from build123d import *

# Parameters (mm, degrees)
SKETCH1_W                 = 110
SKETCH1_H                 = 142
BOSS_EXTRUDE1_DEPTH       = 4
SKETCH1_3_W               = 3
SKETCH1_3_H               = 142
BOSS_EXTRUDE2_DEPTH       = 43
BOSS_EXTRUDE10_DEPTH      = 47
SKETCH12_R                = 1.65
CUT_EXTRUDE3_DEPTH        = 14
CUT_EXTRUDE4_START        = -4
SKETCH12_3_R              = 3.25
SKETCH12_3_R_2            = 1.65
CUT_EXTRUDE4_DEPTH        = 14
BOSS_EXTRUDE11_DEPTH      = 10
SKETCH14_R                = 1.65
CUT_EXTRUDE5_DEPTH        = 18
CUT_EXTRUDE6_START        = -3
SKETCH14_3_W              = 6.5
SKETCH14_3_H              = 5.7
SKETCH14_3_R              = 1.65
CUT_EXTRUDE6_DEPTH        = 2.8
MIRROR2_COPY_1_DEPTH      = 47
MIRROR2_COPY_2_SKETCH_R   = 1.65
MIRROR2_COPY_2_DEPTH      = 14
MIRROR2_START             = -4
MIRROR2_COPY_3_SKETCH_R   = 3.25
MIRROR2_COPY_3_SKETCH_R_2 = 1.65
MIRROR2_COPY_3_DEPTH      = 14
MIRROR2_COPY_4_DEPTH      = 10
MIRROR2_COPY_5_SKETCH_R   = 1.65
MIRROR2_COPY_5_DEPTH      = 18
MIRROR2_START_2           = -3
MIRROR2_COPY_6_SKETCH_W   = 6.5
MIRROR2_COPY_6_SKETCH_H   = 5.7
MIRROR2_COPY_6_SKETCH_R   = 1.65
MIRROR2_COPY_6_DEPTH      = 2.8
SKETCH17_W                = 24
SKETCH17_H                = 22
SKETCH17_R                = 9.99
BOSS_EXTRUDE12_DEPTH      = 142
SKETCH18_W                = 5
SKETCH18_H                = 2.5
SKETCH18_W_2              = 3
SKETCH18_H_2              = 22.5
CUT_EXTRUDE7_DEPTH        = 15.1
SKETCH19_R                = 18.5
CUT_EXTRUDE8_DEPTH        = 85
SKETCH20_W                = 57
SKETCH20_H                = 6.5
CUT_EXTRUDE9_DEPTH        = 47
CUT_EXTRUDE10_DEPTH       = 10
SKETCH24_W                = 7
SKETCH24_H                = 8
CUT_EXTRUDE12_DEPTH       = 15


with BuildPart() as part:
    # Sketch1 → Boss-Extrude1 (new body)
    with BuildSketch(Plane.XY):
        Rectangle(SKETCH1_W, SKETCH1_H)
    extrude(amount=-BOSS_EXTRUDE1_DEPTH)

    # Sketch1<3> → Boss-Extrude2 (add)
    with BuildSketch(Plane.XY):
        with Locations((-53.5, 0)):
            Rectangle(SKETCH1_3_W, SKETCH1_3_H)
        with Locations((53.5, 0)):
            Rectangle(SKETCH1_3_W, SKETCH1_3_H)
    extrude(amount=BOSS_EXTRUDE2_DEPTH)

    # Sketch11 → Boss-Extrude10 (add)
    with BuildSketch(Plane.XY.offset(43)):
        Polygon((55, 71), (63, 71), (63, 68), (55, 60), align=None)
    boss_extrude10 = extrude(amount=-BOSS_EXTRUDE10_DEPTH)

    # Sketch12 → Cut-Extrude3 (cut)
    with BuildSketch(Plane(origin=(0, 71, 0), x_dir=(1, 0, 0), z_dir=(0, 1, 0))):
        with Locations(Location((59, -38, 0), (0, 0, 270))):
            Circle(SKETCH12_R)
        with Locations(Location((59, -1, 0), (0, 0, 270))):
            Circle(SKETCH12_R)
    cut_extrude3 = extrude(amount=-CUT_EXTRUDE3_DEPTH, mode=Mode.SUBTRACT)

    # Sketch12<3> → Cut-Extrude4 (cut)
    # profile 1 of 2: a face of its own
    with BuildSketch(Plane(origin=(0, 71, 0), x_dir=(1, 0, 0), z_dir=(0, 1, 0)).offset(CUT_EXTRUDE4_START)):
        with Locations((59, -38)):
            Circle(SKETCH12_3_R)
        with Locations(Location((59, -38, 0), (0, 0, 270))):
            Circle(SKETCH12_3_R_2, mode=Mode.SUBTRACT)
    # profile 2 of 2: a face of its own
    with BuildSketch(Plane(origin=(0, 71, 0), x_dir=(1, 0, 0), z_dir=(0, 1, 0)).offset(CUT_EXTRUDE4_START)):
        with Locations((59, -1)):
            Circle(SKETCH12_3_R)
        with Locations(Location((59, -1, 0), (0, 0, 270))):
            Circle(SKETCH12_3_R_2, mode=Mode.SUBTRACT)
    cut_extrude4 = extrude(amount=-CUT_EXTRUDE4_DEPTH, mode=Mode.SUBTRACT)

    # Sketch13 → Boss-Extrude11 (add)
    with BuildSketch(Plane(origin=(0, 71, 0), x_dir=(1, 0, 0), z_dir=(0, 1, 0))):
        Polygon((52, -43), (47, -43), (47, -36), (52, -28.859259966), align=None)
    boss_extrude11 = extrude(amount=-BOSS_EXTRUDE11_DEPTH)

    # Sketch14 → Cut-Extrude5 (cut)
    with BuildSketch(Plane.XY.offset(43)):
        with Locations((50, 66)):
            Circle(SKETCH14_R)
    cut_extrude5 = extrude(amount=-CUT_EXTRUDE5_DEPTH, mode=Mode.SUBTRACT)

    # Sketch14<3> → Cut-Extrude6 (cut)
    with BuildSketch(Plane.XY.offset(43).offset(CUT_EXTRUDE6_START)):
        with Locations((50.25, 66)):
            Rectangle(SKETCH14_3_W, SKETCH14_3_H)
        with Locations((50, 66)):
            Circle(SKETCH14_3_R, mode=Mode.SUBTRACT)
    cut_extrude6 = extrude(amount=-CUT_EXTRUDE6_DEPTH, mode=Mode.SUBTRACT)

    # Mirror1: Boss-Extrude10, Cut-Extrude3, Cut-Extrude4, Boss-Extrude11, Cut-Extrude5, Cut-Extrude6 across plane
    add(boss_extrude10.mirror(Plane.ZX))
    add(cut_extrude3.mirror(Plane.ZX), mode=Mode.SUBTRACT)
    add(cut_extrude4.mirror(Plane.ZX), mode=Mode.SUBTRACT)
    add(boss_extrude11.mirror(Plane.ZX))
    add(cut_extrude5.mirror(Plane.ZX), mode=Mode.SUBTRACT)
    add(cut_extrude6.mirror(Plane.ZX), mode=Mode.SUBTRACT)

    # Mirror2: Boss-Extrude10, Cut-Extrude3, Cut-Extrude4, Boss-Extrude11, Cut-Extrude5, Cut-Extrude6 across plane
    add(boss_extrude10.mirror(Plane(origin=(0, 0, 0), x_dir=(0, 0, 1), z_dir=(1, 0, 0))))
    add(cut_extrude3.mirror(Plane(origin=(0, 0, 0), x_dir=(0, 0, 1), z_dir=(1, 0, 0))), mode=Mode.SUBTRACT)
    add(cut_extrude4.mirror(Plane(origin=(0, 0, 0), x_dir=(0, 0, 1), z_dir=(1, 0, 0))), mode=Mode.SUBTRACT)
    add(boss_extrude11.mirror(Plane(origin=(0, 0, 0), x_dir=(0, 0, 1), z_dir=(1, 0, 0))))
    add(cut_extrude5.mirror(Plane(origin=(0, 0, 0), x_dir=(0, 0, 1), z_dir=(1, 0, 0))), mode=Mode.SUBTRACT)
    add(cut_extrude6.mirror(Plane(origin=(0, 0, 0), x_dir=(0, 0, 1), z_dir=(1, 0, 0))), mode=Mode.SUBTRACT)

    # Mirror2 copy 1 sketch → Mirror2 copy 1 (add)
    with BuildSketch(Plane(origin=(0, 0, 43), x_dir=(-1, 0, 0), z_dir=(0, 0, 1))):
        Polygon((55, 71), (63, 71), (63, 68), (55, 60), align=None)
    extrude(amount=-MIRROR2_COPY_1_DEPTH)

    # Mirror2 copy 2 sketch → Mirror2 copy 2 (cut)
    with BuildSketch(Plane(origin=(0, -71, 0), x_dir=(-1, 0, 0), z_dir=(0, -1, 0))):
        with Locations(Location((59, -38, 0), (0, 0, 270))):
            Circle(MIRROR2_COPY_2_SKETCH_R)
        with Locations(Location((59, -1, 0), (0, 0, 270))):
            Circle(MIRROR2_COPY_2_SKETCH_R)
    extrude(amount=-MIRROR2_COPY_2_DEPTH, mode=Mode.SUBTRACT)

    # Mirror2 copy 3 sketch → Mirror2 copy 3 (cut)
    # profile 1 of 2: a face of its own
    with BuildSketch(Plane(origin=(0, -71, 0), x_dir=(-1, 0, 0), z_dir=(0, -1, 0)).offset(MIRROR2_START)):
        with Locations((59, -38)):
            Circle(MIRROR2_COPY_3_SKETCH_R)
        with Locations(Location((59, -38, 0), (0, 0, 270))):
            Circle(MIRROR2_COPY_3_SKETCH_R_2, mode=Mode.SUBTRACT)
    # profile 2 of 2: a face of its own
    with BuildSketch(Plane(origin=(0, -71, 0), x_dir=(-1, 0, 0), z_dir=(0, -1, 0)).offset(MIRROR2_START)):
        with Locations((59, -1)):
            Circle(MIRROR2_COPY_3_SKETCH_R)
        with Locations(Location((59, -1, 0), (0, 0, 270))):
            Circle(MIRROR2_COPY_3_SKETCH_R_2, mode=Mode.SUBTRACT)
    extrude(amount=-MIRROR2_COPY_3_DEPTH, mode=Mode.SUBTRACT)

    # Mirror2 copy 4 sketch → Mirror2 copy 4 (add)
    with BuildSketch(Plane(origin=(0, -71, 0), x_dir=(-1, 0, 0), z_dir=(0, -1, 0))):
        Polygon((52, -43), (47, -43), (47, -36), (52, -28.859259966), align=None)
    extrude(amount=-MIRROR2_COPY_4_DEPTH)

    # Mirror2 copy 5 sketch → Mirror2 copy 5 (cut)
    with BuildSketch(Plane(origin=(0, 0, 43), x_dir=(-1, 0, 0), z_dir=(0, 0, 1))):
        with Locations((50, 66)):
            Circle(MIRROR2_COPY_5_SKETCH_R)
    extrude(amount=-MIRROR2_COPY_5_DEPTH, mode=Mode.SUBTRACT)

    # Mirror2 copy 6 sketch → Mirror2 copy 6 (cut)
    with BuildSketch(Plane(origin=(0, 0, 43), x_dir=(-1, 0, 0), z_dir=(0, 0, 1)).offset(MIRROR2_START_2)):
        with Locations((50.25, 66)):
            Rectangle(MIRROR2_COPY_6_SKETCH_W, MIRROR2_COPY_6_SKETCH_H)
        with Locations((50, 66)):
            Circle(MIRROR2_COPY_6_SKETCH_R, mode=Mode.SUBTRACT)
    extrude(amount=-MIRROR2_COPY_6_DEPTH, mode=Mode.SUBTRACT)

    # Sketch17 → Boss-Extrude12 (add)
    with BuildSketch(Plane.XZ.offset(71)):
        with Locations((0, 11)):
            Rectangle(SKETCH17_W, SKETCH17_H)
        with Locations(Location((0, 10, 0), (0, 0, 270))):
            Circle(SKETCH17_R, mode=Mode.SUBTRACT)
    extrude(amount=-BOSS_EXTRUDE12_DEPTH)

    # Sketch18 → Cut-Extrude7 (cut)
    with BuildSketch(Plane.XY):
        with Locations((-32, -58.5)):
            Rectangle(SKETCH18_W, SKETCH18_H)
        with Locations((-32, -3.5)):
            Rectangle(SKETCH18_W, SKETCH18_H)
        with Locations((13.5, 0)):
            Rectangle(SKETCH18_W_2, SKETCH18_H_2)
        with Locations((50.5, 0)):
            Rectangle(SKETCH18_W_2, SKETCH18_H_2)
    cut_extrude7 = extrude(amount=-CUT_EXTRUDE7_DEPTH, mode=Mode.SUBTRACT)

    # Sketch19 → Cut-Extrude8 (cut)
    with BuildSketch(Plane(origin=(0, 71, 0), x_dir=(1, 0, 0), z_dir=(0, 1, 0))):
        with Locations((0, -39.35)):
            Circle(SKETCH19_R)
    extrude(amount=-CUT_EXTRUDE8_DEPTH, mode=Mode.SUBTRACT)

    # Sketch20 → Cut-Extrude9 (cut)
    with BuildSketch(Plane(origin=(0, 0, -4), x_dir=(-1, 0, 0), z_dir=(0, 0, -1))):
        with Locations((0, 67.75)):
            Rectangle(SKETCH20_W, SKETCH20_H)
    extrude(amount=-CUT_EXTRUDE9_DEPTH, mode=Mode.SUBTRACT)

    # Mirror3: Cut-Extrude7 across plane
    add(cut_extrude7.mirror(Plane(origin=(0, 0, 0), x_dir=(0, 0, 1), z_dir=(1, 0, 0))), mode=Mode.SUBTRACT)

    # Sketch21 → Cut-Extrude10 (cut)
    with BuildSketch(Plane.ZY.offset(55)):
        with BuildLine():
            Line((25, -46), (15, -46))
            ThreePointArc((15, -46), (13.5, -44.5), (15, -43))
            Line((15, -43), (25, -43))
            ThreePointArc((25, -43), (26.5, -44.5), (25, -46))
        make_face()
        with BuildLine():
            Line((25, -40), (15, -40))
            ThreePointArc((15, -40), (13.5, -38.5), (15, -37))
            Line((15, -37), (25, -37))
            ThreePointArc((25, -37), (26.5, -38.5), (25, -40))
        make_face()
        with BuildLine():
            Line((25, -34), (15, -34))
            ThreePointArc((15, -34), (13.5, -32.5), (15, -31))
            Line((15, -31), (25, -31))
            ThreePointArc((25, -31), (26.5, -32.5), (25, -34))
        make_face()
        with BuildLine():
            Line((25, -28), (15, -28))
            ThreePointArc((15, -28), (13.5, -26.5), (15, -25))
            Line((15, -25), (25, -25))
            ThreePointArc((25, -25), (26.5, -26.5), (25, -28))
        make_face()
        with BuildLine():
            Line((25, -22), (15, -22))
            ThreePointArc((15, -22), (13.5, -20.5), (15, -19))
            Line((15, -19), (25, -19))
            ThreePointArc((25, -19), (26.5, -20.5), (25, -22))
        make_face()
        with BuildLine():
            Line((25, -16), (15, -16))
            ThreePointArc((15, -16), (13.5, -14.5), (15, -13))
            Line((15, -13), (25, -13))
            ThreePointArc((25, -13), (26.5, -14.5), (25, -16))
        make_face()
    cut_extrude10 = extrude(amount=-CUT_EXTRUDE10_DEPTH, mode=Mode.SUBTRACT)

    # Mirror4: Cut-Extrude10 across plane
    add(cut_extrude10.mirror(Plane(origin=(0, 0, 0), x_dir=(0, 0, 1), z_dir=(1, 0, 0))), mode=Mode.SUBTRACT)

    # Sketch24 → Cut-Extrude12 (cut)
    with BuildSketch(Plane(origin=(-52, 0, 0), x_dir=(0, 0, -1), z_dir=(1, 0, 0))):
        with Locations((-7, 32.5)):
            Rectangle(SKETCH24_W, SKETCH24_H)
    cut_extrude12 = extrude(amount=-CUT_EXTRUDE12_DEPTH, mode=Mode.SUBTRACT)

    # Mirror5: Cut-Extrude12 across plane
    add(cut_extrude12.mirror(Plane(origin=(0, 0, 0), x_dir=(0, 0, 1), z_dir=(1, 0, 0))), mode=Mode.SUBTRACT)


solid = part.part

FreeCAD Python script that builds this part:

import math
import FreeCAD as App
import Part
import Sketcher
Q = App.Units.Quantity

doc = App.newDocument("Part")
body = doc.addObject("PartDesign::Body", "Body")

# Sketch on XY plane
sketch1 = body.newObject("Sketcher::SketchObject", "Sketch")
sketch1.AttachmentSupport = (doc.getObject("XY_Plane"), [""])
sketch1.MapMode = "FlatFace"
sketch1.addGeometry([
    Part.LineSegment(App.Vector(-55, 71, 0), App.Vector(-55, -71, 0)),
    Part.LineSegment(App.Vector(-55, -71, 0), App.Vector(55, -71, 0)),
    Part.LineSegment(App.Vector(55, -71, 0), App.Vector(55, 71, 0)),
    Part.LineSegment(App.Vector(55, 71, 0), App.Vector(-55, 71, 0)),
], False)
sketch1.addConstraint([
    Sketcher.Constraint("Coincident", 0, 2, 1, 1),
    Sketcher.Constraint("Coincident", 1, 2, 2, 1),
    Sketcher.Constraint("Coincident", 2, 2, 3, 1),
    Sketcher.Constraint("Coincident", 3, 2, 0, 1),
    Sketcher.Constraint("Vertical", 0),
    Sketcher.Constraint("Horizontal", 1),
    Sketcher.Constraint("Vertical", 2),
    Sketcher.Constraint("Horizontal", 3),
    Sketcher.Constraint("Symmetric", 0, 2, 2, 2, -1, 1),
    Sketcher.Constraint("DistanceX", 1, 1, 1, 2, Q("110 mm")),
    Sketcher.Constraint("DistanceY", 0, 2, 0, 1, Q("142 mm")),
])
pad1 = body.newObject("PartDesign::Pad", "Pad")
pad1.Profile = sketch1
pad1.Length = 4
pad1.Reversed = True

# Sketch on XY plane
sketch2 = body.newObject("Sketcher::SketchObject", "Sketch001")
sketch2.AttachmentSupport = (doc.getObject("XY_Plane"), [""])
sketch2.MapMode = "FlatFace"
sketch2.addGeometry([
    Part.LineSegment(App.Vector(-55, 71, 0), App.Vector(-55, -71, 0)),  # 0
    Part.LineSegment(App.Vector(-55, -71, 0), App.Vector(-52, -71, 0)),  # 1
    Part.LineSegment(App.Vector(-52, -71, 0), App.Vector(-52, 71, 0)),  # 2
    Part.LineSegment(App.Vector(-52, 71, 0), App.Vector(-55, 71, 0)),  # 3
    Part.LineSegment(App.Vector(52, 71, 0), App.Vector(52, -71, 0)),  # 4
    Part.LineSegment(App.Vector(52, -71, 0), App.Vector(55, -71, 0)),  # 5
    Part.LineSegment(App.Vector(55, -71, 0), App.Vector(55, 71, 0)),  # 6
    Part.LineSegment(App.Vector(55, 71, 0), App.Vector(52, 71, 0)),  # 7
], False)
sketch2.addConstraint([
    Sketcher.Constraint("Coincident", 0, 2, 1, 1),
    Sketcher.Constraint("Coincident", 1, 2, 2, 1),
    Sketcher.Constraint("Coincident", 2, 2, 3, 1),
    Sketcher.Constraint("Coincident", 3, 2, 0, 1),
    Sketcher.Constraint("Coincident", 4, 2, 5, 1),
    Sketcher.Constraint("Coincident", 5, 2, 6, 1),
    Sketcher.Constraint("Coincident", 6, 2, 7, 1),
    Sketcher.Constraint("Coincident", 7, 2, 4, 1),
    Sketcher.Constraint("Vertical", 0),
    Sketcher.Constraint("Horizontal", 1),
    Sketcher.Constraint("Vertical", 2),
    Sketcher.Constraint("Horizontal", 3),
    Sketcher.Constraint("Vertical", 4),
    Sketcher.Constraint("Horizontal", 5),
    Sketcher.Constraint("Vertical", 6),
    Sketcher.Constraint("Horizontal", 7),
    Sketcher.Constraint("Symmetric", 2, 2, 4, 2, -1, 1),
    Sketcher.Constraint("Symmetric", 0, 2, 6, 2, -1, 1),
    Sketcher.Constraint("Horizontal", 1, 2, 4, 2),
    Sketcher.Constraint("DistanceX", 1, 1, 1, 2, Q("3 mm")),
    Sketcher.Constraint("DistanceY", 0, 2, 0, 1, Q("142 mm")),
    Sketcher.Constraint("DistanceX", 0, 2, -1, 1, Q("55 mm")),
])
pad2 = body.newObject("PartDesign::Pad", "Pad001")
pad2.Profile = sketch2
pad2.Length = 43

# Sketch on XY plane
sketch3 = body.newObject("Sketcher::SketchObject", "Sketch002")
sketch3.AttachmentSupport = (doc.getObject("XY_Plane"), [""])
sketch3.MapMode = "FlatFace"
sketch3.AttachmentOffset = App.Placement(App.Vector(0, 0, 43), App.Rotation())
sketch3.addGeometry([
    Part.LineSegment(App.Vector(63, 71, 0), App.Vector(55, 71, 0)),
    Part.LineSegment(App.Vector(55, 71, 0), App.Vector(55, 60, 0)),
    Part.LineSegment(App.Vector(55, 60, 0), App.Vector(63, 68, 0)),
    Part.LineSegment(App.Vector(63, 68, 0), App.Vector(63, 71, 0)),
], False)
sketch3.addConstraint([
    Sketcher.Constraint("Coincident", 0, 2, 1, 1),
    Sketcher.Constraint("Coincident", 1, 2, 2, 1),
    Sketcher.Constraint("Coincident", 2, 2, 3, 1),
    Sketcher.Constraint("Coincident", 3, 2, 0, 1),
    Sketcher.Constraint("Horizontal", 0),
    Sketcher.Constraint("Vertical", 1),
    Sketcher.Constraint("Vertical", 3),
    Sketcher.Constraint("DistanceX", 0, 2, 0, 1, Q("8 mm")),
    Sketcher.Constraint("DistanceY", 1, 2, 1, 1, Q("11 mm")),
    Sketcher.Constraint("DistanceY", 3, 1, 3, 2, Q("3 mm")),
    Sketcher.Constraint("DistanceX", -1, 1, 0, 2, Q("55 mm")),
    Sketcher.Constraint("DistanceY", -1, 1, 0, 2, Q("71 mm")),
])
pad3 = body.newObject("PartDesign::Pad", "Pad002")
pad3.Profile = sketch3
pad3.Length = 47
pad3.Reversed = True

# Sketch on XZ plane
sketch4 = body.newObject("Sketcher::SketchObject", "Sketch003")
sketch4.AttachmentSupport = (doc.getObject("XZ_Plane"), [""])
sketch4.MapMode = "FlatFace"
sketch4.AttachmentOffset = App.Placement(App.Vector(0, 0, -71), App.Rotation())
sketch4.addGeometry([
    Part.Circle(App.Vector(59, 38, 0), App.Vector(0, 0, 1), 1.6),
    Part.Circle(App.Vector(59, 1, 0), App.Vector(0, 0, 1), 1.6),
], False)
sketch4.addConstraint([
    Sketcher.Constraint("Equal", 0, 1),
    Sketcher.Constraint("Vertical", 0, 3, 1, 3),
    Sketcher.Constraint("Diameter", 0, Q("3.3 mm")),
    Sketcher.Constraint("DistanceX", -1, 1, 0, 3, Q("59 mm")),
    Sketcher.Constraint("DistanceY", -1, 1, 0, 3, Q("38 mm")),
    Sketcher.Constraint("DistanceY", -1, 1, 1, 3, Q("1 mm")),
])
pocket1 = body.newObject("PartDesign::Pocket", "Pocket")
pocket1.Profile = sketch4
pocket1.Length = 14
pocket1.Reversed = True

# Sketch on XZ plane
sketch5 = body.newObject("Sketcher::SketchObject", "Sketch004")
sketch5.AttachmentSupport = (doc.getObject("XZ_Plane"), [""])
sketch5.MapMode = "FlatFace"
sketch5.AttachmentOffset = App.Placement(App.Vector(0, 0, -67), App.Rotation())
sketch5.addGeometry([
    Part.Circle(App.Vector(59, 38, 0), App.Vector(0, 0, 1), 3.2),
    Part.Circle(App.Vector(59, 38, 0), App.Vector(0, 0, 1), 1.6),
    Part.Circle(App.Vector(59, 1, 0), App.Vector(0, 0, 1), 3.2),
    Part.Circle(App.Vector(59, 1, 0), App.Vector(0, 0, 1), 1.6),
], False)
sketch5.addConstraint([
    Sketcher.Constraint("Coincident", 1, 3, 0, 3),
    Sketcher.Constraint("Coincident", 3, 3, 2, 3),
    Sketcher.Constraint("Equal", 0, 2),
    Sketcher.Constraint("Equal", 1, 3),
    Sketcher.Constraint("Vertical", 1, 3, 2, 3),
    Sketcher.Constraint("Diameter", 0, Q("6.5 mm")),
    Sketcher.Constraint("Diameter", 1, Q("3.3 mm")),
    Sketcher.Constraint("DistanceX", -1, 1, 0, 3, Q("59 mm")),
    Sketcher.Constraint("DistanceY", -1, 1, 0, 3, Q("38 mm")),
    Sketcher.Constraint("DistanceY", -1, 1, 2, 3, Q("1 mm")),
])
pocket2 = body.newObject("PartDesign::Pocket", "Pocket001")
pocket2.Profile = sketch5
pocket2.Length = 14
pocket2.Reversed = True

# Sketch on XZ plane
sketch6 = body.newObject("Sketcher::SketchObject", "Sketch005")
sketch6.AttachmentSupport = (doc.getObject("XZ_Plane"), [""])
sketch6.MapMode = "FlatFace"
sketch6.AttachmentOffset = App.Placement(App.Vector(0, 0, -71), App.Rotation())
sketch6.addGeometry([
    Part.LineSegment(App.Vector(47, 43, 0), App.Vector(52, 43, 0)),
    Part.LineSegment(App.Vector(52, 43, 0), App.Vector(52, 29, 0)),
    Part.LineSegment(App.Vector(52, 29, 0), App.Vector(47, 36, 0)),
    Part.LineSegment(App.Vector(47, 36, 0), App.Vector(47, 43, 0)),
], False)
sketch6.addConstraint([
    Sketcher.Constraint("Coincident", 0, 2, 1, 1),
    Sketcher.Constraint("Coincident", 1, 2, 2, 1),
    Sketcher.Constraint("Coincident", 2, 2, 3, 1),
    Sketcher.Constraint("Coincident", 3, 2, 0, 1),
    Sketcher.Constraint("Horizontal", 0),
    Sketcher.Constraint("Vertical", 1),
    Sketcher.Constraint("Vertical", 3),
    Sketcher.Constraint("DistanceX", 0, 1, 0, 2, Q("5 mm")),
    Sketcher.Constraint("DistanceY", 3, 1, 3, 2, Q("7 mm")),
    Sketcher.Constraint("Angle", 2, Q("125 deg")),
    Sketcher.Constraint("DistanceX", -1, 1, 0, 2, Q("52 mm")),
    Sketcher.Constraint("DistanceY", -1, 1, 0, 2, Q("43 mm")),
])
pad4 = body.newObject("PartDesign::Pad", "Pad003")
pad4.Profile = sketch6
pad4.Length = 10

# Sketch on XY plane
sketch7 = body.newObject("Sketcher::SketchObject", "Sketch006")
sketch7.AttachmentSupport = (doc.getObject("XY_Plane"), [""])
sketch7.MapMode = "FlatFace"
sketch7.AttachmentOffset = App.Placement(App.Vector(0, 0, 43), App.Rotation())
sketch7.addGeometry(Part.Circle(App.Vector(50, 66, 0), App.Vector(0, 0, 1), 1.6), False)
sketch7.addConstraint([
    Sketcher.Constraint("Diameter", 0, Q("3.3 mm")),
    Sketcher.Constraint("DistanceX", -1, 1, 0, 3, Q("50 mm")),
    Sketcher.Constraint("DistanceY", -1, 1, 0, 3, Q("66 mm")),
])
pocket3 = body.newObject("PartDesign::Pocket", "Pocket002")
pocket3.Profile = sketch7
pocket3.Length = 18

# Sketch on XY plane
sketch8 = body.newObject("Sketcher::SketchObject", "Sketch007")
sketch8.AttachmentSupport = (doc.getObject("XY_Plane"), [""])
sketch8.MapMode = "FlatFace"
sketch8.AttachmentOffset = App.Placement(App.Vector(0, 0, 40), App.Rotation())
sketch8.addGeometry([
    Part.LineSegment(App.Vector(47, 68.8, 0), App.Vector(47, 63.1, 0)),  # 0
    Part.LineSegment(App.Vector(47, 63.1, 0), App.Vector(53.5, 63.1, 0)),  # 1
    Part.LineSegment(App.Vector(53.5, 63.1, 0), App.Vector(53.5, 68.8, 0)),  # 2
    Part.LineSegment(App.Vector(53.5, 68.8, 0), App.Vector(47, 68.8, 0)),  # 3
    Part.Circle(App.Vector(50, 66, 0), App.Vector(0, 0, 1), 1.6),  # 4
], False)
sketch8.addConstraint([
    Sketcher.Constraint("Coincident", 0, 2, 1, 1),
    Sketcher.Constraint("Coincident", 1, 2, 2, 1),
    Sketcher.Constraint("Coincident", 2, 2, 3, 1),
    Sketcher.Constraint("Coincident", 3, 2, 0, 1),
    Sketcher.Constraint("Vertical", 0),
    Sketcher.Constraint("Horizontal", 1),
    Sketcher.Constraint("Vertical", 2),
    Sketcher.Constraint("Horizontal", 3),
    Sketcher.Constraint("Diameter", 4, Q("3.3 mm")),
    Sketcher.Constraint("DistanceX", 1, 1, 1, 2, Q("6.5 mm")),
    Sketcher.Constraint("DistanceY", 0, 2, 0, 1, Q("5.7 mm")),
    Sketcher.Constraint("DistanceX", -1, 1, 4, 3, Q("50 mm")),
    Sketcher.Constraint("DistanceY", -1, 1, 4, 3, Q("66 mm")),
    Sketcher.Constraint("DistanceX", -1, 1, 0, 2, Q("47 mm")),
    Sketcher.Constraint("DistanceY", -1, 1, 0, 2, Q("63.15 mm")),
])
pocket4 = body.newObject("PartDesign::Pocket", "Pocket003")
pocket4.Profile = sketch8
pocket4.Length = 2.8
doc.recompute()

mirrored = body.newObject("PartDesign::Mirrored", "Mirrored")
mirrored.Originals = [pad3, pocket1, pocket2, pad4, pocket3, pocket4]
mirrored.MirrorPlane = (doc.getObject("XZ_Plane"), [""])
body.Tip = mirrored
doc.recompute()

mirrored2 = body.newObject("PartDesign::Mirrored", "Mirrored001")
mirrored2.Originals = [pad3, pocket1, pocket2, pad4, pocket3, pocket4]
mirrored2.MirrorPlane = (doc.getObject("YZ_Plane"), [""])
body.Tip = mirrored2

# Sketch on XY plane
sketch9 = body.newObject("Sketcher::SketchObject", "Sketch008")
sketch9.AttachmentSupport = (doc.getObject("XY_Plane"), [""])
sketch9.MapMode = "FlatFace"
sketch9.AttachmentOffset = App.Placement(App.Vector(0, 0, 43), App.Rotation())
sketch9.addGeometry([
    Part.LineSegment(App.Vector(-63, -71, 0), App.Vector(-55, -71, 0)),
    Part.LineSegment(App.Vector(-55, -71, 0), App.Vector(-55, -60, 0)),
    Part.LineSegment(App.Vector(-55, -60, 0), App.Vector(-63, -68, 0)),
    Part.LineSegment(App.Vector(-63, -68, 0), App.Vector(-63, -71, 0)),
], False)
sketch9.addConstraint([
    Sketcher.Constraint("Coincident", 0, 2, 1, 1),
    Sketcher.Constraint("Coincident", 1, 2, 2, 1),
    Sketcher.Constraint("Coincident", 2, 2, 3, 1),
    Sketcher.Constraint("Coincident", 3, 2, 0, 1),
    Sketcher.Constraint("Horizontal", 0),
    Sketcher.Constraint("Vertical", 1),
    Sketcher.Constraint("Vertical", 3),
    Sketcher.Constraint("DistanceX", 0, 1, 0, 2, Q("8 mm")),
    Sketcher.Constraint("DistanceY", 1, 1, 1, 2, Q("11 mm")),
    Sketcher.Constraint("DistanceY", 3, 2, 3, 1, Q("3 mm")),
    Sketcher.Constraint("DistanceX", 0, 2, -1, 1, Q("55 mm")),
    Sketcher.Constraint("DistanceY", 0, 2, -1, 1, Q("71 mm")),
])
pad5 = body.newObject("PartDesign::Pad", "Pad004")
pad5.Profile = sketch9
pad5.Length = 47
pad5.Reversed = True

# Sketch on XZ plane
sketch10 = body.newObject("Sketcher::SketchObject", "Sketch009")
sketch10.AttachmentSupport = (doc.getObject("XZ_Plane"), [""])
sketch10.MapMode = "FlatFace"
sketch10.AttachmentOffset = App.Placement(App.Vector(0, 0, 71), App.Rotation())
sketch10.addGeometry([
    Part.Circle(App.Vector(-59, 38, 0), App.Vector(0, 0, 1), 1.6),
    Part.Circle(App.Vector(-59, 1, 0), App.Vector(0, 0, 1), 1.6),
], False)
sketch10.addConstraint([
    Sketcher.Constraint("Equal", 0, 1),
    Sketcher.Constraint("Vertical", 0, 3, 1, 3),
    Sketcher.Constraint("Diameter", 0, Q("3.3 mm")),
    Sketcher.Constraint("DistanceX", 0, 3, -1, 1, Q("59 mm")),
    Sketcher.Constraint("DistanceY", -1, 1, 0, 3, Q("38 mm")),
    Sketcher.Constraint("DistanceY", -1, 1, 1, 3, Q("1 mm")),
])
pocket5 = body.newObject("PartDesign::Pocket", "Pocket004")
pocket5.Profile = sketch10
pocket5.Length = 14

# Sketch on XZ plane
sketch11 = body.newObject("Sketcher::SketchObject", "Sketch010")
sketch11.AttachmentSupport = (doc.getObject("XZ_Plane"), [""])
sketch11.MapMode = "FlatFace"
sketch11.AttachmentOffset = App.Placement(App.Vector(0, 0, 67), App.Rotation())
sketch11.addGeometry([
    Part.Circle(App.Vector(-59, 38, 0), App.Vector(0, 0, 1), 3.2),
    Part.Circle(App.Vector(-59, 38, 0), App.Vector(0, 0, 1), 1.6),
    Part.Circle(App.Vector(-59, 1, 0), App.Vector(0, 0, 1), 3.2),
    Part.Circle(App.Vector(-59, 1, 0), App.Vector(0, 0, 1), 1.6),
], False)
sketch11.addConstraint([
    Sketcher.Constraint("Coincident", 1, 3, 0, 3),
    Sketcher.Constraint("Coincident", 3, 3, 2, 3),
    Sketcher.Constraint("Equal", 0, 2),
    Sketcher.Constraint("Equal", 1, 3),
    Sketcher.Constraint("Vertical", 1, 3, 2, 3),
    Sketcher.Constraint("Diameter", 0, Q("6.5 mm")),
    Sketcher.Constraint("Diameter", 1, Q("3.3 mm")),
    Sketcher.Constraint("DistanceX", 0, 3, -1, 1, Q("59 mm")),
    Sketcher.Constraint("DistanceY", -1, 1, 0, 3, Q("38 mm")),
    Sketcher.Constraint("DistanceY", -1, 1, 2, 3, Q("1 mm")),
])
pocket6 = body.newObject("PartDesign::Pocket", "Pocket005")
pocket6.Profile = sketch11
pocket6.Length = 14

# Sketch on XZ plane
sketch12 = body.newObject("Sketcher::SketchObject", "Sketch011")
sketch12.AttachmentSupport = (doc.getObject("XZ_Plane"), [""])
sketch12.MapMode = "FlatFace"
sketch12.AttachmentOffset = App.Placement(App.Vector(0, 0, 71), App.Rotation())
sketch12.addGeometry([
    Part.LineSegment(App.Vector(-47, 43, 0), App.Vector(-52, 43, 0)),
    Part.LineSegment(App.Vector(-52, 43, 0), App.Vector(-52, 29, 0)),
    Part.LineSegment(App.Vector(-52, 29, 0), App.Vector(-47, 36, 0)),
    Part.LineSegment(App.Vector(-47, 36, 0), App.Vector(-47, 43, 0)),
], False)
sketch12.addConstraint([
    Sketcher.Constraint("Coincident", 0, 2, 1, 1),
    Sketcher.Constraint("Coincident", 1, 2, 2, 1),
    Sketcher.Constraint("Coincident", 2, 2, 3, 1),
    Sketcher.Constraint("Coincident", 3, 2, 0, 1),
    Sketcher.Constraint("Horizontal", 0),
    Sketcher.Constraint("Vertical", 1),
    Sketcher.Constraint("Vertical", 3),
    Sketcher.Constraint("DistanceX", 0, 2, 0, 1, Q("5 mm")),
    Sketcher.Constraint("DistanceY", 3, 1, 3, 2, Q("7 mm")),
    Sketcher.Constraint("Angle", 2, Q("55 deg")),
    Sketcher.Constraint("DistanceX", 0, 2, -1, 1, Q("52 mm")),
    Sketcher.Constraint("DistanceY", -1, 1, 0, 2, Q("43 mm")),
])
pad6 = body.newObject("PartDesign::Pad", "Pad005")
pad6.Profile = sketch12
pad6.Length = 10
pad6.Reversed = True

# Sketch on XY plane
sketch13 = body.newObject("Sketcher::SketchObject", "Sketch012")
sketch13.AttachmentSupport = (doc.getObject("XY_Plane"), [""])
sketch13.MapMode = "FlatFace"
sketch13.AttachmentOffset = App.Placement(App.Vector(0, 0, 43), App.Rotation())
sketch13.addGeometry(Part.Circle(App.Vector(-50, -66, 0), App.Vector(0, 0, 1), 1.6), False)
sketch13.addConstraint([
    Sketcher.Constraint("Diameter", 0, Q("3.3 mm")),
    Sketcher.Constraint("DistanceX", 0, 3, -1, 1, Q("50 mm")),
    Sketcher.Constraint("DistanceY", 0, 3, -1, 1, Q("66 mm")),
])
pocket7 = body.newObject("PartDesign::Pocket", "Pocket006")
pocket7.Profile = sketch13
pocket7.Length = 18

# Sketch on XY plane
sketch14 = body.newObject("Sketcher::SketchObject", "Sketch013")
sketch14.AttachmentSupport = (doc.getObject("XY_Plane"), [""])
sketch14.MapMode = "FlatFace"
sketch14.AttachmentOffset = App.Placement(App.Vector(0, 0, 40), App.Rotation())
sketch14.addGeometry([
    Part.LineSegment(App.Vector(-47, -68.8, 0), App.Vector(-47, -63.1, 0)),  # 0
    Part.LineSegment(App.Vector(-47, -63.1, 0), App.Vector(-53.5, -63.1, 0)),  # 1
    Part.LineSegment(App.Vector(-53.5, -63.1, 0), App.Vector(-53.5, -68.8, 0)),  # 2
    Part.LineSegment(App.Vector(-53.5, -68.8, 0), App.Vector(-47, -68.8, 0)),  # 3
    Part.Circle(App.Vector(-50, -66, 0), App.Vector(0, 0, 1), 1.6),  # 4
], False)
sketch14.addConstraint([
    Sketcher.Constraint("Coincident", 0, 2, 1, 1),
    Sketcher.Constraint("Coincident", 1, 2, 2, 1),
    Sketcher.Constraint("Coincident", 2, 2, 3, 1),
    Sketcher.Constraint("Coincident", 3, 2, 0, 1),
    Sketcher.Constraint("Vertical", 0),
    Sketcher.Constraint("Horizontal", 1),
    Sketcher.Constraint("Vertical", 2),
    Sketcher.Constraint("Horizontal", 3),
    Sketcher.Constraint("Diameter", 4, Q("3.3 mm")),
    Sketcher.Constraint("DistanceX", 1, 2, 1, 1, Q("6.5 mm")),
    Sketcher.Constraint("DistanceY", 0, 1, 0, 2, Q("5.7 mm")),
    Sketcher.Constraint("DistanceX", 4, 3, -1, 1, Q("50 mm")),
    Sketcher.Constraint("DistanceY", 4, 3, -1, 1, Q("66 mm")),
    Sketcher.Constraint("DistanceX", 0, 2, -1, 1, Q("47 mm")),
    Sketcher.Constraint("DistanceY", 0, 2, -1, 1, Q("63.15 mm")),
])
pocket8 = body.newObject("PartDesign::Pocket", "Pocket007")
pocket8.Profile = sketch14
pocket8.Length = 2.8

# Sketch on XZ plane
sketch15 = body.newObject("Sketcher::SketchObject", "Sketch014")
sketch15.AttachmentSupport = (doc.getObject("XZ_Plane"), [""])
sketch15.MapMode = "FlatFace"
sketch15.AttachmentOffset = App.Placement(App.Vector(0, 0, 71), App.Rotation())
sketch15.addGeometry([
    Part.LineSegment(App.Vector(-12, 22, 0), App.Vector(-12, 0, 0)),  # 0
    Part.LineSegment(App.Vector(-12, 0, 0), App.Vector(12, 0, 0)),  # 1
    Part.LineSegment(App.Vector(12, 0, 0), App.Vector(12, 22, 0)),  # 2
    Part.LineSegment(App.Vector(12, 22, 0), App.Vector(-12, 22, 0)),  # 3
    Part.Circle(App.Vector(0, 10, 0), App.Vector(0, 0, 1), 10),  # 4
], False)
sketch15.addConstraint([
    Sketcher.Constraint("Coincident", 0, 2, 1, 1),
    Sketcher.Constraint("Coincident", 1, 2, 2, 1),
    Sketcher.Constraint("Coincident", 2, 2, 3, 1),
    Sketcher.Constraint("Coincident", 3, 2, 0, 1),
    Sketcher.Constraint("Vertical", 0),
    Sketcher.Constraint("Horizontal", 1),
    Sketcher.Constraint("Vertical", 2),
    Sketcher.Constraint("Horizontal", 3),
    Sketcher.Constraint("Symmetric", 0, 2, 1, 2, -1, 1),
    Sketcher.Constraint("PointOnObject", 4, 3, -2),
    Sketcher.Constraint("Diameter", 4, Q("19.98 mm")),
    Sketcher.Constraint("DistanceX", 1, 1, 1, 2, Q("24 mm")),
    Sketcher.Constraint("DistanceY", 0, 2, 0, 1, Q("22 mm")),
    Sketcher.Constraint("DistanceY", -1, 1, 4, 3, Q("10 mm")),
])
pad7 = body.newObject("PartDesign::Pad", "Pad006")
pad7.Profile = sketch15
pad7.Length = 142
pad7.Reversed = True

# Sketch on XY plane
sketch16 = body.newObject("Sketcher::SketchObject", "Sketch015")
sketch16.AttachmentSupport = (doc.getObject("XY_Plane"), [""])
sketch16.MapMode = "FlatFace"
sketch16.addGeometry([
    Part.LineSegment(App.Vector(-34.5, -57.2, 0), App.Vector(-34.5, -59.8, 0)),  # 0
    Part.LineSegment(App.Vector(-34.5, -59.8, 0), App.Vector(-29.5, -59.8, 0)),  # 1
    Part.LineSegment(App.Vector(-29.5, -59.8, 0), App.Vector(-29.5, -57.2, 0)),  # 2
    Part.LineSegment(App.Vector(-29.5, -57.2, 0), App.Vector(-34.5, -57.2, 0)),  # 3
    Part.LineSegment(App.Vector(-34.5, -2.2, 0), App.Vector(-34.5, -4.8, 0)),  # 4
    Part.LineSegment(App.Vector(-34.5, -4.8, 0), App.Vector(-29.5, -4.8, 0)),  # 5
    Part.LineSegment(App.Vector(-29.5, -4.8, 0), App.Vector(-29.5, -2.2, 0)),  # 6
    Part.LineSegment(App.Vector(-29.5, -2.2, 0), App.Vector(-34.5, -2.2, 0)),  # 7
    Part.LineSegment(App.Vector(12, 11.2, 0), App.Vector(12, -11.2, 0)),  # 8
    Part.LineSegment(App.Vector(12, -11.2, 0), App.Vector(15, -11.2, 0)),  # 9
    Part.LineSegment(App.Vector(15, -11.2, 0), App.Vector(15, 11.2, 0)),  # 10
    Part.LineSegment(App.Vector(15, 11.2, 0), App.Vector(12, 11.2, 0)),  # 11
    Part.LineSegment(App.Vector(49, 11.2, 0), App.Vector(49, -11.2, 0)),  # 12
    Part.LineSegment(App.Vector(49, -11.2, 0), App.Vector(52, -11.2, 0)),  # 13
    Part.LineSegment(App.Vector(52, -11.2, 0), App.Vector(52, 11.2, 0)),  # 14
    Part.LineSegment(App.Vector(52, 11.2, 0), App.Vector(49, 11.2, 0)),  # 15
], False)
sketch16.addConstraint([
    Sketcher.Constraint("Coincident", 0, 2, 1, 1),
    Sketcher.Constraint("Coincident", 1, 2, 2, 1),
    Sketcher.Constraint("Coincident", 2, 2, 3, 1),
    Sketcher.Constraint("Coincident", 3, 2, 0, 1),
    Sketcher.Constraint("Coincident", 4, 2, 5, 1),
    Sketcher.Constraint("Coincident", 5, 2, 6, 1),
    Sketcher.Constraint("Coincident", 6, 2, 7, 1),
    Sketcher.Constraint("Coincident", 7, 2, 4, 1),
    Sketcher.Constraint("Coincident", 8, 2, 9, 1),
    Sketcher.Constraint("Coincident", 9, 2, 10, 1),
    Sketcher.Constraint("Coincident", 10, 2, 11, 1),
    Sketcher.Constraint("Coincident", 11, 2, 8, 1),
    Sketcher.Constraint("Coincident", 12, 2, 13, 1),
    Sketcher.Constraint("Coincident", 13, 2, 14, 1),
    Sketcher.Constraint("Coincident", 14, 2, 15, 1),
    Sketcher.Constraint("Coincident", 15, 2, 12, 1),
    Sketcher.Constraint("Vertical", 0),
    Sketcher.Constraint("Horizontal", 1),
    Sketcher.Constraint("Vertical", 2),
    Sketcher.Constraint("Horizontal", 3),
    Sketcher.Constraint("Vertical", 4),
    Sketcher.Constraint("Horizontal", 5),
    Sketcher.Constraint("Vertical", 6),
    Sketcher.Constraint("Horizontal", 7),
    Sketcher.Constraint("Vertical", 8),
    Sketcher.Constraint("Horizontal", 9),
    Sketcher.Constraint("Vertical", 10),
    Sketcher.Constraint("Horizontal", 11),
    Sketcher.Constraint("Vertical", 12),
    Sketcher.Constraint("Horizontal", 13),
    Sketcher.Constraint("Vertical", 14),
    Sketcher.Constraint("Horizontal", 15),
    Sketcher.Constraint("Horizontal", 9, 2, 12, 2),
    Sketcher.Constraint("Horizontal", 11, 2, 14, 2),
    Sketcher.Constraint("Vertical", 3, 2, 4, 2),
    Sketcher.Constraint("Vertical", 2, 2, 5, 2),
    Sketcher.Constraint("Equal", 11, 13),
    Sketcher.Constraint("Equal", 2, 4),
    Sketcher.Constraint("DistanceX", 1, 1, 1, 2, Q("5 mm")),
    Sketcher.Constraint("DistanceX", 9, 1, 9, 2, Q("3 mm")),
    Sketcher.Constraint("DistanceY", 0, 2, 0, 1, Q("2.5 mm")),
    Sketcher.Constraint("DistanceY", 8, 2, 8, 1, Q("22.5 mm")),
    Sketcher.Constraint("DistanceX", -1, 1, 8, 2, Q("12 mm")),
    Sketcher.Constraint("DistanceX", -1, 1, 12, 2, Q("49 mm")),
    Sketcher.Constraint("DistanceY", 0, 2, 4, 2, Q("55 mm")),
    Sketcher.Constraint("DistanceY", 8, 2, 6, 2, Q("9 mm")),
    Sketcher.Constraint("DistanceX", 0, 2, -1, 1, Q("34.5 mm")),
    Sketcher.Constraint("DistanceY", 0, 2, -1, 1, Q("59.75 mm")),
])
pocket9 = body.newObject("PartDesign::Pocket", "Pocket008")
pocket9.Profile = sketch16
pocket9.Length = 15.1

# Sketch on XZ plane
sketch17 = body.newObject("Sketcher::SketchObject", "Sketch016")
sketch17.AttachmentSupport = (doc.getObject("XZ_Plane"), [""])
sketch17.MapMode = "FlatFace"
sketch17.AttachmentOffset = App.Placement(App.Vector(0, 0, -71), App.Rotation())
sketch17.addGeometry(Part.Circle(App.Vector(0, 39, 0), App.Vector(0, 0, 1), 18), False)
sketch17.addConstraint([
    Sketcher.Constraint("PointOnObject", 0, 3, -2),
    Sketcher.Constraint("Diameter", 0, Q("37 mm")),
    Sketcher.Constraint("DistanceY", -1, 1, 0, 3, Q("39.35 mm")),
])
pocket10 = body.newObject("PartDesign::Pocket", "Pocket009")
pocket10.Profile = sketch17
pocket10.Length = 85
pocket10.Reversed = True

# Sketch on XY plane
sketch18 = body.newObject("Sketcher::SketchObject", "Sketch017")
sketch18.AttachmentSupport = (doc.getObject("XY_Plane"), [""])
sketch18.MapMode = "FlatFace"
sketch18.AttachmentOffset = App.Placement(App.Vector(0, 0, -4), App.Rotation())
sketch18.addGeometry([
    Part.LineSegment(App.Vector(28, 71, 0), App.Vector(28, 64, 0)),
    Part.LineSegment(App.Vector(28, 64, 0), App.Vector(-28, 64, 0)),
    Part.LineSegment(App.Vector(-28, 64, 0), App.Vector(-28, 71, 0)),
    Part.LineSegment(App.Vector(-28, 71, 0), App.Vector(28, 71, 0)),
], False)
sketch18.addConstraint([
    Sketcher.Constraint("Coincident", 0, 2, 1, 1),
    Sketcher.Constraint("Coincident", 1, 2, 2, 1),
    Sketcher.Constraint("Coincident", 2, 2, 3, 1),
    Sketcher.Constraint("Coincident", 3, 2, 0, 1),
    Sketcher.Constraint("Vertical", 0),
    Sketcher.Constraint("Horizontal", 1),
    Sketcher.Constraint("Vertical", 2),
    Sketcher.Constraint("Horizontal", 3),
    Sketcher.Constraint("DistanceX", 1, 2, 1, 1, Q("57 mm")),
    Sketcher.Constraint("DistanceY", 0, 2, 0, 1, Q("6.5 mm")),
    Sketcher.Constraint("DistanceY", -1, 1, 2, 2, Q("71 mm")),
    Sketcher.Constraint("DistanceX", -1, 1, 0, 2, Q("28.5 mm")),
])
pocket11 = body.newObject("PartDesign::Pocket", "Pocket010")
pocket11.Profile = sketch18
pocket11.Length = 47
pocket11.Reversed = True
doc.recompute()

mirrored3 = body.newObject("PartDesign::Mirrored", "Mirrored002")
mirrored3.Originals = [pocket9]
mirrored3.MirrorPlane = (doc.getObject("YZ_Plane"), [""])
body.Tip = mirrored3

# Sketch on YZ plane
sketch19 = body.newObject("Sketcher::SketchObject", "Sketch018")
sketch19.AttachmentSupport = (doc.getObject("YZ_Plane"), [""])
sketch19.MapMode = "FlatFace"
sketch19.AttachmentOffset = App.Placement(App.Vector(0, 0, -55), App.Rotation())
sketch19.addGeometry([
    Part.LineSegment(App.Vector(-46, 15, 0), App.Vector(-46, 25, 0)),  # 0
    Part.ArcOfCircle(Part.Circle(App.Vector(-44.5, 25, 0), App.Vector(0, 0, 1), 1.5), math.radians(0), math.radians(180)),  # 1
    Part.LineSegment(App.Vector(-43, 25, 0), App.Vector(-43, 15, 0)),  # 2
    Part.ArcOfCircle(Part.Circle(App.Vector(-44.5, 15, 0), App.Vector(0, 0, 1), 1.5), math.radians(180), math.radians(360)),  # 3
    Part.LineSegment(App.Vector(-40, 15, 0), App.Vector(-40, 25, 0)),  # 4
    Part.ArcOfCircle(Part.Circle(App.Vector(-38.5, 25, 0), App.Vector(0, 0, 1), 1.5), math.radians(0), math.radians(180)),  # 5
    Part.LineSegment(App.Vector(-37, 25, 0), App.Vector(-37, 15, 0)),  # 6
    Part.ArcOfCircle(Part.Circle(App.Vector(-38.5, 15, 0), App.Vector(0, 0, 1), 1.5), math.radians(180), math.radians(360)),  # 7
    Part.LineSegment(App.Vector(-34, 15, 0), App.Vector(-34, 25, 0)),  # 8
    Part.ArcOfCircle(Part.Circle(App.Vector(-32.5, 25, 0), App.Vector(0, 0, 1), 1.5), math.radians(0), math.radians(180)),  # 9
    Part.LineSegment(App.Vector(-31, 25, 0), App.Vector(-31, 15, 0)),  # 10
    Part.ArcOfCircle(Part.Circle(App.Vector(-32.5, 15, 0), App.Vector(0, 0, 1), 1.5), math.radians(180), math.radians(360)),  # 11
    Part.LineSegment(App.Vector(-28, 15, 0), App.Vector(-28, 25, 0)),  # 12
    Part.ArcOfCircle(Part.Circle(App.Vector(-26.5, 25, 0), App.Vector(0, 0, 1), 1.5), math.radians(0), math.radians(180)),  # 13
    Part.LineSegment(App.Vector(-25, 25, 0), App.Vector(-25, 15, 0)),  # 14
    Part.ArcOfCircle(Part.Circle(App.Vector(-26.5, 15, 0), App.Vector(0, 0, 1), 1.5), math.radians(180), math.radians(360)),  # 15
    Part.LineSegment(App.Vector(-22, 15, 0), App.Vector(-22, 25, 0)),  # 16
    Part.ArcOfCircle(Part.Circle(App.Vector(-20.5, 25, 0), App.Vector(0, 0, 1), 1.5), math.radians(0), math.radians(180)),  # 17
    Part.LineSegment(App.Vector(-19, 25, 0), App.Vector(-19, 15, 0)),  # 18
    Part.ArcOfCircle(Part.Circle(App.Vector(-20.5, 15, 0), App.Vector(0, 0, 1), 1.5), math.radians(180), math.radians(360)),  # 19
    Part.LineSegment(App.Vector(-16, 15, 0), App.Vector(-16, 25, 0)),  # 20
    Part.ArcOfCircle(Part.Circle(App.Vector(-14.5, 25, 0), App.Vector(0, 0, 1), 1.5), math.radians(0), math.radians(180)),  # 21
    Part.LineSegment(App.Vector(-13, 25, 0), App.Vector(-13, 15, 0)),  # 22
    Part.ArcOfCircle(Part.Circle(App.Vector(-14.5, 15, 0), App.Vector(0, 0, 1), 1.5), math.radians(180), math.radians(360)),  # 23
], False)
sketch19.addConstraint([
    Sketcher.Constraint("Tangent", 0, 2, 1, 2),
    Sketcher.Constraint("Tangent", 1, 1, 2, 1),
    Sketcher.Constraint("Tangent", 2, 2, 3, 2),
    Sketcher.Constraint("Tangent", 3, 1, 0, 1),
    Sketcher.Constraint("Tangent", 4, 2, 5, 2),
    Sketcher.Constraint("Tangent", 5, 1, 6, 1),
    Sketcher.Constraint("Tangent", 6, 2, 7, 2),
    Sketcher.Constraint("Tangent", 7, 1, 4, 1),
    Sketcher.Constraint("Tangent", 8, 2, 9, 2),
    Sketcher.Constraint("Tangent", 9, 1, 10, 1),
    Sketcher.Constraint("Tangent", 10, 2, 11, 2),
    Sketcher.Constraint("Tangent", 11, 1, 8, 1),
    Sketcher.Constraint("Tangent", 12, 2, 13, 2),
    Sketcher.Constraint("Tangent", 13, 1, 14, 1),
    Sketcher.Constraint("Tangent", 14, 2, 15, 2),
    Sketcher.Constraint("Tangent", 15, 1, 12, 1),
    Sketcher.Constraint("Tangent", 16, 2, 17, 2),
    Sketcher.Constraint("Tangent", 17, 1, 18, 1),
    Sketcher.Constraint("Tangent", 18, 2, 19, 2),
    Sketcher.Constraint("Tangent", 19, 1, 16, 1),
    Sketcher.Constraint("Tangent", 20, 2, 21, 2),
    Sketcher.Constraint("Tangent", 21, 1, 22, 1),
    Sketcher.Constraint("Tangent", 22, 2, 23, 2),
    Sketcher.Constraint("Tangent", 23, 1, 20, 1),
    Sketcher.Constraint("Vertical", 0),
    Sketcher.Constraint("Vertical", 2),
    Sketcher.Constraint("Vertical", 4),
    Sketcher.Constraint("Vertical", 6),
    Sketcher.Constraint("Vertical", 8),
    Sketcher.Constraint("Vertical", 10),
    Sketcher.Constraint("Vertical", 12),
    Sketcher.Constraint("Vertical", 14),
    Sketcher.Constraint("Vertical", 16),
    Sketcher.Constraint("Vertical", 18),
    Sketcher.Constraint("Vertical", 20),
    Sketcher.Constraint("Vertical", 22),
    Sketcher.Constraint("Equal", 3, 5),
    Sketcher.Constraint("Equal", 7, 9),
    Sketcher.Constraint("Equal", 11, 13),
    Sketcher.Constraint("Equal", 15, 17),
    Sketcher.Constraint("Equal", 19, 21),
    Sketcher.Constraint("Horizontal", 1, 3, 5, 3),
    Sketcher.Constraint("Horizontal", 3, 3, 7, 3),
    Sketcher.Constraint("Horizontal", 5, 3, 9, 3),
    Sketcher.Constraint("Horizontal", 7, 3, 11, 3),
    Sketcher.Constraint("Horizontal", 9, 3, 13, 3),
    Sketcher.Constraint("Horizontal", 11, 3, 15, 3),
    Sketcher.Constraint("Horizontal", 13, 3, 17, 3),
    Sketcher.Constraint("Horizontal", 15, 3, 19, 3),
    Sketcher.Constraint("Horizontal", 17, 3, 21, 3),
    Sketcher.Constraint("Horizontal", 19, 3, 23, 3),
    Sketcher.Constraint("Radius", 1, Q("1.5 mm")),
    Sketcher.Constraint("DistanceY", 0, 1, 0, 2, Q("10 mm")),
    Sketcher.Constraint("DistanceY", -1, 1, 1, 3, Q("25 mm")),
    Sketcher.Constraint("DistanceX", 0, 2, -1, 1, Q("46 mm")),
    Sketcher.Constraint("DistanceX", 4, 2, -1, 1, Q("40 mm")),
    Sketcher.Constraint("DistanceX", 8, 2, -1, 1, Q("34 mm")),
    Sketcher.Constraint("DistanceX", 12, 2, -1, 1, Q("28 mm")),
    Sketcher.Constraint("DistanceX", 16, 2, -1, 1, Q("22 mm")),
    Sketcher.Constraint("DistanceX", 20, 2, -1, 1, Q("16 mm")),
])
pocket12 = body.newObject("PartDesign::Pocket", "Pocket011")
pocket12.Profile = sketch19
pocket12.Length = 10
pocket12.Reversed = True
doc.recompute()

mirrored4 = body.newObject("PartDesign::Mirrored", "Mirrored003")
mirrored4.Originals = [pocket12]
mirrored4.MirrorPlane = (doc.getObject("YZ_Plane"), [""])
body.Tip = mirrored4

# Sketch on YZ plane
sketch20 = body.newObject("Sketcher::SketchObject", "Sketch019")
sketch20.AttachmentSupport = (doc.getObject("YZ_Plane"), [""])
sketch20.MapMode = "FlatFace"
sketch20.AttachmentOffset = App.Placement(App.Vector(0, 0, -52), App.Rotation())
sketch20.addGeometry([
    Part.LineSegment(App.Vector(36, 10, 0), App.Vector(28, 10, 0)),
    Part.LineSegment(App.Vector(28, 10, 0), App.Vector(28, 4, 0)),
    Part.LineSegment(App.Vector(28, 4, 0), App.Vector(36, 4, 0)),
    Part.LineSegment(App.Vector(36, 4, 0), App.Vector(36, 10, 0)),
], False)
sketch20.addConstraint([
    Sketcher.Constraint("Coincident", 0, 2, 1, 1),
    Sketcher.Constraint("Coincident", 1, 2, 2, 1),
    Sketcher.Constraint("Coincident", 2, 2, 3, 1),
    Sketcher.Constraint("Coincident", 3, 2, 0, 1),
    Sketcher.Constraint("Horizontal", 0),
    Sketcher.Constraint("Vertical", 1),
    Sketcher.Constraint("Horizontal", 2),
    Sketcher.Constraint("Vertical", 3),
    Sketcher.Constraint("DistanceX", 0, 2, 0, 1, Q("8 mm")),
    Sketcher.Constraint("DistanceY", 1, 2, 1, 1, Q("7 mm")),
    Sketcher.Constraint("DistanceX", -1, 1, 0, 2, Q("28.5 mm")),
    Sketcher.Constraint("DistanceY", -1, 1, 0, 2, Q("10.5 mm")),
])
pocket13 = body.newObject("PartDesign::Pocket", "Pocket012")
pocket13.Profile = sketch20
pocket13.Length = 15
doc.recompute()

mirrored5 = body.newObject("PartDesign::Mirrored", "Mirrored004")
mirrored5.Originals = [pocket13]
mirrored5.MirrorPlane = (doc.getObject("YZ_Plane"), [""])
body.Tip = mirrored5

doc.recompute()
